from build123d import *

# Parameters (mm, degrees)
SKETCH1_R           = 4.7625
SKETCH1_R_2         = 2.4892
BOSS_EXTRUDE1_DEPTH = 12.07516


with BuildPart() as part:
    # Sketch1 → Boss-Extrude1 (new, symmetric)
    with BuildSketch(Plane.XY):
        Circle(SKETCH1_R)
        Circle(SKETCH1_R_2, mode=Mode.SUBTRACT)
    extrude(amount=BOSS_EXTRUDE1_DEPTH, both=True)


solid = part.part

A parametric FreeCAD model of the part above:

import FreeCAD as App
import Part
import Sketcher

V = App.Vector
Q = App.Units.Quantity

doc = App.newDocument("Part")
body = doc.addObject("PartDesign::Body", "Body")

# Sketch on XY plane
sketch1 = body.newObject("Sketcher::SketchObject", "Sketch")
sketch1.AttachmentSupport = (doc.getObject("XY_Plane"), [""])
sketch1.MapMode = "FlatFace"
sketch1.addGeometry([
    Part.Circle(V(0, 0, 0), V(0, 0, 1), 4.7625),
    Part.Circle(V(0, 0, 0), V(0, 0, 1), 2.4892),
], False)
sketch1.addConstraint([
    Sketcher.Constraint("Coincident", 0, 3, -1, 1),
    Sketcher.Constraint("Coincident", 1, 3, -1, 1),
    Sketcher.Constraint("Diameter", 0, Q("0.375 in")),
    Sketcher.Constraint("Diameter", 1, Q("0.196 in")),
])
pad1 = body.newObject("PartDesign::Pad", "Pad")
pad1.Profile = sketch1
pad1.Length = Q("0.9508 in")
pad1.Midplane = True

doc.recompute()
